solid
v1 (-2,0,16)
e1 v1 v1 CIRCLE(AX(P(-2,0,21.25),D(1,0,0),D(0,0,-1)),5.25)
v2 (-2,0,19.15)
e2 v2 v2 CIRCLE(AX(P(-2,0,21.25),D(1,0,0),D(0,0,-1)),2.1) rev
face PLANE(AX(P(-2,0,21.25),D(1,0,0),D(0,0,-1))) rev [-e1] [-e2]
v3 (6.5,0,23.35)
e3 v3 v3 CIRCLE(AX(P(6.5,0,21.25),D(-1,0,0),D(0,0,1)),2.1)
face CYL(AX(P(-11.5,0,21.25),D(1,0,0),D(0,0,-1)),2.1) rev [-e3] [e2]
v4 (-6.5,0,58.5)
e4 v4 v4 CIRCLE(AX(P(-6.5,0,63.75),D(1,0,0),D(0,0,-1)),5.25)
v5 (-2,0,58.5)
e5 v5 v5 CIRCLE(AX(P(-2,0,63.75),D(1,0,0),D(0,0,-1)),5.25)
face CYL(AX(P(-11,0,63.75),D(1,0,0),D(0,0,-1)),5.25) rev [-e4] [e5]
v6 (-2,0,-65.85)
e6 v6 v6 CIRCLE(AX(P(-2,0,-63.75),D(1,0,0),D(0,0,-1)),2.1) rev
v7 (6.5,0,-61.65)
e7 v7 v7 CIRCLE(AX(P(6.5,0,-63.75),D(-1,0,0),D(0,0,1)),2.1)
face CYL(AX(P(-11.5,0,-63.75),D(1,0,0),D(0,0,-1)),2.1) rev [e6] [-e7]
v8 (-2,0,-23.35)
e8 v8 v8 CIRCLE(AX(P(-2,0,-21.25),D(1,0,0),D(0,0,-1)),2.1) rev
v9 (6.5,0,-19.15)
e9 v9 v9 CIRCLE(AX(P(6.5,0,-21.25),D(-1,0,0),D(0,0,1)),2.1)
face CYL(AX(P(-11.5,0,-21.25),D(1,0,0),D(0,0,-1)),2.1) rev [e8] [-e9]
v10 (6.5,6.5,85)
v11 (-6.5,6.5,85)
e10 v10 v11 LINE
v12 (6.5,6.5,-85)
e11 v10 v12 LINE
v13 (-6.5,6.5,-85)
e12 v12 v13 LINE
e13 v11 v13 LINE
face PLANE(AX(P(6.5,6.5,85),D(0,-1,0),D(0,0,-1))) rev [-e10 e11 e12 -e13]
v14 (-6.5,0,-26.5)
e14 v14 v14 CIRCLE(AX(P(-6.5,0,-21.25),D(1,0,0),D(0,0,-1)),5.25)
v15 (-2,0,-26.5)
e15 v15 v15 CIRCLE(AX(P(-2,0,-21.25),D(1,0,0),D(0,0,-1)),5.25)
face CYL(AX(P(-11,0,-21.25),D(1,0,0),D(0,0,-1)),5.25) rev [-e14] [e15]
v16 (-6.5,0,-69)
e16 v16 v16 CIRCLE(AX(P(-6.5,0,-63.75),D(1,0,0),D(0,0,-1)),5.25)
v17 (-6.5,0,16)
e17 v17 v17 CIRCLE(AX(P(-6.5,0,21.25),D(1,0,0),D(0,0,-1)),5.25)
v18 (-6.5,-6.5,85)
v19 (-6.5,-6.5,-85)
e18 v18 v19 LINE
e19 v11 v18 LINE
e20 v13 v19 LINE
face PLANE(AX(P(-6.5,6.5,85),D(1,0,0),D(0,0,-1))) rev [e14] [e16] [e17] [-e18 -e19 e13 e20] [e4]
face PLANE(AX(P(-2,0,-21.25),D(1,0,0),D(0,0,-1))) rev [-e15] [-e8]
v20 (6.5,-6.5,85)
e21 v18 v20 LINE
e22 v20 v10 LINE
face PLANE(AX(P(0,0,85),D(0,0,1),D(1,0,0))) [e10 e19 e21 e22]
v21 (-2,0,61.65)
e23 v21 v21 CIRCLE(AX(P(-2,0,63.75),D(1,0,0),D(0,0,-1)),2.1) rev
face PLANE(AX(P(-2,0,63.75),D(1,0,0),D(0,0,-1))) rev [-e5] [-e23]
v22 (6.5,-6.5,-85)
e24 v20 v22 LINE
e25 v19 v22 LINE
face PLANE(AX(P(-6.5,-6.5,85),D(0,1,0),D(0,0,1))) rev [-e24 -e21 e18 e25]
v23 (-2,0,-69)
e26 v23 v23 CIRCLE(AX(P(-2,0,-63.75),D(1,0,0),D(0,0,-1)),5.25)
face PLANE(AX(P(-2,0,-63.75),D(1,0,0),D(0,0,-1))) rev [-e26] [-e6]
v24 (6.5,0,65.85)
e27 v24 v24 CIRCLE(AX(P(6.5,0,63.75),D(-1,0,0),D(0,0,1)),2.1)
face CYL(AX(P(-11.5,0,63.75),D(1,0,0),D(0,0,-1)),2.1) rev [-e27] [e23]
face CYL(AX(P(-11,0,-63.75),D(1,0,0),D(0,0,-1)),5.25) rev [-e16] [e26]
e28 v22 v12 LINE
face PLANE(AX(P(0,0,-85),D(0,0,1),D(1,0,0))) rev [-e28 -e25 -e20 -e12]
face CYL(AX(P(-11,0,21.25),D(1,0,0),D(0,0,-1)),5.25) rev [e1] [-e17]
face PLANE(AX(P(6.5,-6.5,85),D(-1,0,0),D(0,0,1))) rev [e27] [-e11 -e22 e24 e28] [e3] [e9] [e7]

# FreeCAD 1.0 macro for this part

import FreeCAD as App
import Part
import Sketcher
Q = App.Units.Quantity

doc = App.newDocument("Part")
body = doc.addObject("PartDesign::Body", "Body")

# Sketch on XY plane
sketch1 = body.newObject("Sketcher::SketchObject", "Sketch")
sketch1.AttachmentSupport = (doc.getObject("XY_Plane"), [""])
sketch1.MapMode = "FlatFace"
sketch1.addGeometry([
    Part.LineSegment(App.Vector(-6, 6, 0), App.Vector(-6, -6, 0)),
    Part.LineSegment(App.Vector(-6, -6, 0), App.Vector(6, -6, 0)),
    Part.LineSegment(App.Vector(6, -6, 0), App.Vector(6, 6, 0)),
    Part.LineSegment(App.Vector(6, 6, 0), App.Vector(-6, 6, 0)),
], False)
sketch1.addConstraint([
    Sketcher.Constraint("Coincident", 0, 2, 1, 1),
    Sketcher.Constraint("Coincident", 1, 2, 2, 1),
    Sketcher.Constraint("Coincident", 2, 2, 3, 1),
    Sketcher.Constraint("Coincident", 3, 2, 0, 1),
    Sketcher.Constraint("Vertical", 0),
    Sketcher.Constraint("Horizontal", 1),
    Sketcher.Constraint("Vertical", 2),
    Sketcher.Constraint("Horizontal", 3),
    Sketcher.Constraint("Symmetric", 0, 2, 2, 2, -1, 1),
    Sketcher.Constraint("Equal", 3, 0),
    Sketcher.Constraint("DistanceX", 1, 1, 1, 2, Q("13 mm")),
])
pad1 = body.newObject("PartDesign::Pad", "Pad")
pad1.Profile = sketch1
pad1.Length = 170
pad1.Midplane = True

# Sketch on YZ plane
sketch2 = body.newObject("Sketcher::SketchObject", "Sketch001")
sketch2.AttachmentSupport = (doc.getObject("YZ_Plane"), [""])
sketch2.MapMode = "FlatFace"
sketch2.addGeometry([
    Part.Circle(App.Vector(0, -63.8, 0), App.Vector(0, 0, 1), 2.1),
    Part.Circle(App.Vector(0, -21.2, 0), App.Vector(0, 0, 1), 2.1),
    Part.Circle(App.Vector(0, 21.2, 0), App.Vector(0, 0, 1), 2.1),
    Part.Circle(App.Vector(0, 63.8, 0), App.Vector(0, 0, 1), 2.1),
], False)
sketch2.addConstraint([
    Sketcher.Constraint("Equal", 0, 1),
    Sketcher.Constraint("Equal", 1, 2),
    Sketcher.Constraint("Equal", 2, 3),
    Sketcher.Constraint("Symmetric", 1, 3, 2, 3, -1, 1),
    Sketcher.Constraint("Symmetric", 0, 3, 3, 3, -1, 1),
    Sketcher.Constraint("PointOnObject", 0, 3, -2),
    Sketcher.Constraint("PointOnObject", 1, 3, -2),
    Sketcher.Constraint("Diameter", 0, Q("4.2 mm")),
    Sketcher.Constraint("DistanceY", 0, 3, 2, 3, Q("85 mm")),
    Sketcher.Constraint("DistanceY", 0, 3, 1, 3, Q("42.5 mm")),
])
pocket1 = body.newObject("PartDesign::Pocket", "Pocket")
pocket1.Profile = sketch2
pocket1.Length = 23
pocket1.Midplane = True

# Sketch on YZ plane
sketch3 = body.newObject("Sketcher::SketchObject", "Sketch002")
sketch3.AttachmentSupport = (doc.getObject("YZ_Plane"), [""])
sketch3.MapMode = "FlatFace"
sketch3.AttachmentOffset = App.Placement(App.Vector(0, 0, -6.5), App.Rotation())
sketch3.addGeometry([
    Part.Circle(App.Vector(0, -64, 0), App.Vector(0, 0, 1), 5),
    Part.Circle(App.Vector(0, -21, 0), App.Vector(0, 0, 1), 5),
    Part.Circle(App.Vector(0, 21, 0), App.Vector(0, 0, 1), 5),
    Part.Circle(App.Vector(0, 64, 0), App.Vector(0, 0, 1), 5),
], False)
sketch3.addConstraint([
    Sketcher.Constraint("Equal", 0, 1),
    Sketcher.Constraint("Equal", 1, 2),
    Sketcher.Constraint("Equal", 2, 3),
    Sketcher.Constraint("Symmetric", 1, 3, 2, 3, -1, 1),
    Sketcher.Constraint("Symmetric", 0, 3, 3, 3, -1, 1),
    Sketcher.Constraint("PointOnObject", 0, 3, -2),
    Sketcher.Constraint("PointOnObject", 1, 3, -2),
    Sketcher.Constraint("Diameter", 0, Q("10.5 mm")),
    Sketcher.Constraint("DistanceY", 0, 3, 2, 3, Q("85 mm")),
    Sketcher.Constraint("DistanceY", 0, 3, 1, 3, Q("42.5 mm")),
])
pocket2 = body.newObject("PartDesign::Pocket", "Pocket001")
pocket2.Profile = sketch3
pocket2.Length = 9
pocket2.Midplane = True

doc.recompute()
